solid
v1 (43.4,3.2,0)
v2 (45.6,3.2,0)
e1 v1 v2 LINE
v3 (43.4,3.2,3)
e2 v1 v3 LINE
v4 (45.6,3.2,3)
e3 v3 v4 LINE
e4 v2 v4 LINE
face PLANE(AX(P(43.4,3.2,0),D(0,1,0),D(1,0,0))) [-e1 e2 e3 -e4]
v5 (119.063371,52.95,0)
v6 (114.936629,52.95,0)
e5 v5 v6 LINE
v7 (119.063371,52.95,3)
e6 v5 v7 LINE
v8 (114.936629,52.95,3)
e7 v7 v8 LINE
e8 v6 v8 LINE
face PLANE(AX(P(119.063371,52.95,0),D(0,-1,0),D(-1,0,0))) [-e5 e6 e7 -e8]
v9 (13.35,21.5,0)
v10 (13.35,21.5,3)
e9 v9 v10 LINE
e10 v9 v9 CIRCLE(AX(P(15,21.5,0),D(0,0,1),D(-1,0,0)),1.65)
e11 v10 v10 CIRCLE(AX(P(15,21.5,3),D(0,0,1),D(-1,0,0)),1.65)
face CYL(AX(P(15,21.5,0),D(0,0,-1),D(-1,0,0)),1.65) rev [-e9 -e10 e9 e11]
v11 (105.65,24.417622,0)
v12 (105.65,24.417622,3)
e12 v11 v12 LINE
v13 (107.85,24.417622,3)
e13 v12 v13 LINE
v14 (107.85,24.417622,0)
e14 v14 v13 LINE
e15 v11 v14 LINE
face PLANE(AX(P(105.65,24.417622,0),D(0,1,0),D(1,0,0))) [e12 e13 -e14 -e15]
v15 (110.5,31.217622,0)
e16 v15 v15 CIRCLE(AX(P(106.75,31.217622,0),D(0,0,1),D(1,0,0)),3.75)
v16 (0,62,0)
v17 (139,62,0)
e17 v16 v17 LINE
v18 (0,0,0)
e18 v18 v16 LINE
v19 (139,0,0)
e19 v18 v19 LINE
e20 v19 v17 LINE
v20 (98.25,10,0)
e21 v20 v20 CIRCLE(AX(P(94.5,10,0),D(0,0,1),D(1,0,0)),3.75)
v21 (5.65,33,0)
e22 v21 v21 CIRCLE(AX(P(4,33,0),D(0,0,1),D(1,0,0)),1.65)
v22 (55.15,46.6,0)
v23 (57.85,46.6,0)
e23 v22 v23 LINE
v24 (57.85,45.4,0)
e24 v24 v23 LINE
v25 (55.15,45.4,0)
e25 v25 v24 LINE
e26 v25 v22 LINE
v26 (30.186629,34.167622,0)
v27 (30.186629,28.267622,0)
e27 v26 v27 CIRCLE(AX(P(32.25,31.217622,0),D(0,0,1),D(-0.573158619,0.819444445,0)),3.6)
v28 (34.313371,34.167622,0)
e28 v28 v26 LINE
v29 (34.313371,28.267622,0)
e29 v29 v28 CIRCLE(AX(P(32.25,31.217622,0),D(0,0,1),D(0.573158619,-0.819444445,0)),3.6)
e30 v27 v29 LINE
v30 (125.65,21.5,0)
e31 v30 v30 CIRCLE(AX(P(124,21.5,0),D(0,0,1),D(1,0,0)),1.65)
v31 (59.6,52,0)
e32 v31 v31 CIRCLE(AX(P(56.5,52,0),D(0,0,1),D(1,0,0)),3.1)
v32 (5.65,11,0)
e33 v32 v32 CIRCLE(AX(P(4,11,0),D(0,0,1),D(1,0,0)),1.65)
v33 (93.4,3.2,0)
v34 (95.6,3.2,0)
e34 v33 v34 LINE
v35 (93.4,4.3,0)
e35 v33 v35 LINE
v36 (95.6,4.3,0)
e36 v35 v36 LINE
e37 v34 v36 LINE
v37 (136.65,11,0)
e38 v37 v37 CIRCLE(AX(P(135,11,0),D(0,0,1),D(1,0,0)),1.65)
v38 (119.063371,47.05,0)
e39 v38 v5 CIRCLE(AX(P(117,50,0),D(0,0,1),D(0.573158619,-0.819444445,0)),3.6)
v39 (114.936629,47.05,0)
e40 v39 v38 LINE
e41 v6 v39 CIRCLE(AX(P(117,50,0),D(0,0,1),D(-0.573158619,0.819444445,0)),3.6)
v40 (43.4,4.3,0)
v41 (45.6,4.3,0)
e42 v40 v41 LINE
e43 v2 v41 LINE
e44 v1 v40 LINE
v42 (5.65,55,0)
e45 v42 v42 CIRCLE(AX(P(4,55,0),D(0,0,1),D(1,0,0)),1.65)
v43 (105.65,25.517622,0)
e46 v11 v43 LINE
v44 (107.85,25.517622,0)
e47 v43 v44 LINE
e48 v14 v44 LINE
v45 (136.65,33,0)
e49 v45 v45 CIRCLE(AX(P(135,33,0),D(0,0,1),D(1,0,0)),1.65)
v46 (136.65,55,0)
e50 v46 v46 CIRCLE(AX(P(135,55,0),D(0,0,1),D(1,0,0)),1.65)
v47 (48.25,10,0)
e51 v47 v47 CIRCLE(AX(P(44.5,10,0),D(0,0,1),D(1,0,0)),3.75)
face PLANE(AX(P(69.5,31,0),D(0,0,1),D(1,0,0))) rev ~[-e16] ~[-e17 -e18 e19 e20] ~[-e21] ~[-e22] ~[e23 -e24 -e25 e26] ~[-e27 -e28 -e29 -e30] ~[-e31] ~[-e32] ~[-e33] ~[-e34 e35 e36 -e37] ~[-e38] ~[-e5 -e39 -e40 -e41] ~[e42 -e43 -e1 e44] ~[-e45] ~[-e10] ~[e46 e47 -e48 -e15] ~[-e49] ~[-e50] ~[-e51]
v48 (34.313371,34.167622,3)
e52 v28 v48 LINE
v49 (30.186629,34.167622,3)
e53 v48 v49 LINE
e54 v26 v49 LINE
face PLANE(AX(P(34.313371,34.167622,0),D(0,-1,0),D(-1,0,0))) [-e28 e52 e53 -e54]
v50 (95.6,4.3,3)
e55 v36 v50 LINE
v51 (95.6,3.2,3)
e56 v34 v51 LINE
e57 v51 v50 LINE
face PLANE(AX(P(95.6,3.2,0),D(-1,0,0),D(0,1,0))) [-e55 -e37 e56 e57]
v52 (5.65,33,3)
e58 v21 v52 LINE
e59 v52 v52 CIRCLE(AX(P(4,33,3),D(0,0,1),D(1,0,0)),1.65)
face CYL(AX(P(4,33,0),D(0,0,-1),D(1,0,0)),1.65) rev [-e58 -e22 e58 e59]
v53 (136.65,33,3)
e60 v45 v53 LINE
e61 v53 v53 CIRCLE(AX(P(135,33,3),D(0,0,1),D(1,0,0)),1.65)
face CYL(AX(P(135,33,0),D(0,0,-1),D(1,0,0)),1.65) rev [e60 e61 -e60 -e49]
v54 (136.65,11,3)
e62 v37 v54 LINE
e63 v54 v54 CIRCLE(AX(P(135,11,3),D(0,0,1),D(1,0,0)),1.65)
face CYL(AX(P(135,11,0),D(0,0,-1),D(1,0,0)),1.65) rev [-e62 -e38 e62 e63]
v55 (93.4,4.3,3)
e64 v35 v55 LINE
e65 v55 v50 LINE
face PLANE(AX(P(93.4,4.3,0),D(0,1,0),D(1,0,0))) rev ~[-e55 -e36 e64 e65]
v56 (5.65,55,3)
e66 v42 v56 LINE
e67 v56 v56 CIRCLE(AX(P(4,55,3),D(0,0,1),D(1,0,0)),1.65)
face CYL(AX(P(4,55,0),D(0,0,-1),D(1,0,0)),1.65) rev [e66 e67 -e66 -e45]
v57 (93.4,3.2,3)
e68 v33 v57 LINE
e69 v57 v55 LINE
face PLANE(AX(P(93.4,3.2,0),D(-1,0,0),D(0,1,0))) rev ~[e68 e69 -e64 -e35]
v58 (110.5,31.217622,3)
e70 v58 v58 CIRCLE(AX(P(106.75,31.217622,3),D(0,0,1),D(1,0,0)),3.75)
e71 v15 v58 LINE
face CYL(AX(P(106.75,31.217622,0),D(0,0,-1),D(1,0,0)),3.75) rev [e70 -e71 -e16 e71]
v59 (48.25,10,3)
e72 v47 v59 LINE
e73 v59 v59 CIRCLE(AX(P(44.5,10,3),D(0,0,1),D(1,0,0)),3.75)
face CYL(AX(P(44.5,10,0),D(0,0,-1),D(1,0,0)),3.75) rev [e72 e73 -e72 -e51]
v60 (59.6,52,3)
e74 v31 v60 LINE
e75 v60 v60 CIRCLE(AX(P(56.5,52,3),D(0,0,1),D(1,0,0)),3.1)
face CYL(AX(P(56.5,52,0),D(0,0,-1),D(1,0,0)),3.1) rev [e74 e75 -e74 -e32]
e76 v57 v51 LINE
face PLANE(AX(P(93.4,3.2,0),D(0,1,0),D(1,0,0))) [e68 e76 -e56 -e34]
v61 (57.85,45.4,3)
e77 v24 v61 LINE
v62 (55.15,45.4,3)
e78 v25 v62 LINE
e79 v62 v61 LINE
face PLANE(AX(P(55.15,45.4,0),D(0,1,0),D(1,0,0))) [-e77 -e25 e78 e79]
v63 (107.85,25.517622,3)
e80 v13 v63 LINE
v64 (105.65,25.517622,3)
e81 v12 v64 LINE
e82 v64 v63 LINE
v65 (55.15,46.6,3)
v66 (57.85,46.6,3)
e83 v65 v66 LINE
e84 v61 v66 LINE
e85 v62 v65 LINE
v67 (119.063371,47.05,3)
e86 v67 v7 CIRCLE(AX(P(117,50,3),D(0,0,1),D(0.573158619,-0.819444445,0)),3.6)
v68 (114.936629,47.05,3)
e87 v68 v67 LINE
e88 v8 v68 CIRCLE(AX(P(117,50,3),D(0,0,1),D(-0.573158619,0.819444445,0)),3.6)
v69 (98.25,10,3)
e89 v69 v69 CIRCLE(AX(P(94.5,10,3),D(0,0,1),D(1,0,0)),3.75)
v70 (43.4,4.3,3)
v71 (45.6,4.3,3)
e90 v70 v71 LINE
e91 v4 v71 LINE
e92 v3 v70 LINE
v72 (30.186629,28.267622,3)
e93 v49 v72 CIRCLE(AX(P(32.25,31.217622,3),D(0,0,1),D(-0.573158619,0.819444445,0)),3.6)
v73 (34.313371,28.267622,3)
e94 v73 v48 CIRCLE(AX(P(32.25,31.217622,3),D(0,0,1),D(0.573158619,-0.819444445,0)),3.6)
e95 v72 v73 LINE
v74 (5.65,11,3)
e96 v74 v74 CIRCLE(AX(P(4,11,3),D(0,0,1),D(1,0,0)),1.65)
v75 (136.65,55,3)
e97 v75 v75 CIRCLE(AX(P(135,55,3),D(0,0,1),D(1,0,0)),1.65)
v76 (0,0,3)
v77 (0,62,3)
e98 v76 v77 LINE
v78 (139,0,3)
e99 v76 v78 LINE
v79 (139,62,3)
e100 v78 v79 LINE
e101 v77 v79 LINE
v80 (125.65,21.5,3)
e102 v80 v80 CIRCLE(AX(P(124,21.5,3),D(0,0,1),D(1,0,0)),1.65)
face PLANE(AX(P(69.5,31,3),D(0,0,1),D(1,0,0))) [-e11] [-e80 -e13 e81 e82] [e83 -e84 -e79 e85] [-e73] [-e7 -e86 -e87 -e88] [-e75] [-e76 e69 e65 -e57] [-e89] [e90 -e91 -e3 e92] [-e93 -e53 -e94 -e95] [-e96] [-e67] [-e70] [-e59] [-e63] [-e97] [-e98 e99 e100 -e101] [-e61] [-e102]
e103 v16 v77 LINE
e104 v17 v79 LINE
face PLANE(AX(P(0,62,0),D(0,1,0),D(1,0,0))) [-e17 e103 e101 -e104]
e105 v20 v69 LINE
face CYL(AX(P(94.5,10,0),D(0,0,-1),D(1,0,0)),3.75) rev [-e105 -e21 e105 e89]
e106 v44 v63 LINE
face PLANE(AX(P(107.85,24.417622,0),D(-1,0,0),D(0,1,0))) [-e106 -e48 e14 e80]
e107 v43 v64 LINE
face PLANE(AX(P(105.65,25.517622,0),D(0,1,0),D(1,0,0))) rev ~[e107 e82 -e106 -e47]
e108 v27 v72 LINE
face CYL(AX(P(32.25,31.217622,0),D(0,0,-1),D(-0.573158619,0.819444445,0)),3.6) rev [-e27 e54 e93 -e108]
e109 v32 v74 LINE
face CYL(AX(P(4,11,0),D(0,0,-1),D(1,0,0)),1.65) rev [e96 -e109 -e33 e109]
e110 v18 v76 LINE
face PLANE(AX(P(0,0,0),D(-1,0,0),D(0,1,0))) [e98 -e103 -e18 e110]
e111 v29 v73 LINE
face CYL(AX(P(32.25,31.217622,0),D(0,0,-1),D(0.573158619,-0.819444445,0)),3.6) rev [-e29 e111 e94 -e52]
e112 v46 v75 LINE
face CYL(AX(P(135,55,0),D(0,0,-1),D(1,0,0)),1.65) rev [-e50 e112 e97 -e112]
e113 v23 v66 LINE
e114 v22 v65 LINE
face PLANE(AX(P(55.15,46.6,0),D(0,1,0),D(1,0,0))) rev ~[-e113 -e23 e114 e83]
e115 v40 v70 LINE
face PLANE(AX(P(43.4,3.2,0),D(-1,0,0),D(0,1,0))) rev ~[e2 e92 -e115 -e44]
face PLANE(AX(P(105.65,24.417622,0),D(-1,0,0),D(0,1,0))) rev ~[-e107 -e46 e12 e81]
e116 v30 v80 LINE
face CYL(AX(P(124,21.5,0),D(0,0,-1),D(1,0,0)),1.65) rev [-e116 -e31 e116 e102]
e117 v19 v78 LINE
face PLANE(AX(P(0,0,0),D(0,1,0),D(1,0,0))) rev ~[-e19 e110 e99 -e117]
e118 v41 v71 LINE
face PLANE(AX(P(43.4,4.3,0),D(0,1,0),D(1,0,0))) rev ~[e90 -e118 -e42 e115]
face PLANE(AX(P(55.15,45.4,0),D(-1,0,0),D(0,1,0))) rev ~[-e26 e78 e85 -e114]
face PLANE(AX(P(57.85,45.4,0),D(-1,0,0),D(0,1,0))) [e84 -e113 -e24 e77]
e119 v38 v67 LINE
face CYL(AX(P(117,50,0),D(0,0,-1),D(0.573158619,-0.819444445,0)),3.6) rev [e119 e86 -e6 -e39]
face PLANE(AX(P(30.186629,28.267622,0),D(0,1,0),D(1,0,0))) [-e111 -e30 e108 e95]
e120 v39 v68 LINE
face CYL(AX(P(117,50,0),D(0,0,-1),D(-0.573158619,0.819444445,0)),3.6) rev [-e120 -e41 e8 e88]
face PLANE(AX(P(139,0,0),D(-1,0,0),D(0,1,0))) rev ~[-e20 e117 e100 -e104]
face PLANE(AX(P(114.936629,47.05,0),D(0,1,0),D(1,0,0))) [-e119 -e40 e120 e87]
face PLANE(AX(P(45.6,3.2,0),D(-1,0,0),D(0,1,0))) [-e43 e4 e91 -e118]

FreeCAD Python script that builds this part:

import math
import FreeCAD as App
import Part
import Sketcher
from FreeCAD import Vector
Q = App.Units.Quantity


def add_polygon(sketch, points):
    """Adds a closed chain of lines whose ends are joined by coincident constraints."""
    first, n = sketch.GeometryCount, len(points)
    for a, b in zip(points, points[1:] + points[:1]):
        sketch.addGeometry(Part.LineSegment(App.Vector(*a, 0), App.Vector(*b, 0)), False)
    for i in range(n):
        sketch.addConstraint(Sketcher.Constraint("Coincident", first + i, 2, first + (i + 1) % n, 1))

doc = App.newDocument("Part")
body = doc.addObject("PartDesign::Body", "Body")

# Sketch on XY plane
sketch1 = body.newObject("Sketcher::SketchObject", "Sketch")
sketch1.AttachmentSupport = (doc.getObject("XY_Plane"), [""])
sketch1.MapMode = "FlatFace"
add_polygon(sketch1, [(0, 62), (0, 0), (139, 0), (139, 62)])  # lines 0-3
sketch1.addGeometry(Part.Circle(Vector(4, 11, 0), Vector(0, 0, 1), 1.6), False)  # 4
add_polygon(sketch1, [(45.6, 3.2), (43.4, 3.2), (43.4, 4.3), (45.6, 4.3)])  # lines 5-8
sketch1.addGeometry(Part.Circle(Vector(44.5, 10, 0), Vector(0, 0, 1), 3.8), False)  # 9
sketch1.addGeometry(Part.Circle(Vector(15, 21.5, 0), Vector(0, 0, 1), 1.6), False)  # 10
add_polygon(sketch1, [(95.6, 3.2), (93.4, 3.2), (93.4, 4.3), (95.6, 4.3)])  # lines 11-14
sketch1.addGeometry(Part.Circle(Vector(94.5, 10, 0), Vector(0, 0, 1), 3.8), False)  # 15
sketch1.addGeometry(Part.Circle(Vector(135, 11, 0), Vector(0, 0, 1), 1.6), False)  # 16
sketch1.addGeometry(Part.Circle(Vector(124, 21.5, 0), Vector(0, 0, 1), 1.6), False)  # 17
add_polygon(sketch1, [(107.8, 24.4), (105.7, 24.4), (105.7, 25.5), (107.8, 25.5)])  # lines 18-21
sketch1.addGeometry(Part.Circle(Vector(4, 33, 0), Vector(0, 0, 1), 1.6), False)  # 22
sketch1.addGeometry(Part.LineSegment(Vector(34.3, 28.3, 0), Vector(30.2, 28.3, 0)), False)  # 23
sketch1.addGeometry(Part.ArcOfCircle(Part.Circle(Vector(32.2, 31.2, 0), Vector(0, 0, 1), 3.6), math.radians(125), math.radians(235)), False)  # 24
sketch1.addGeometry(Part.LineSegment(Vector(30.2, 34.2, 0), Vector(34.3, 34.2, 0)), False)  # 25
sketch1.addGeometry(Part.ArcOfCircle(Part.Circle(Vector(32.2, 31.2, 0), Vector(0, 0, 1), 3.6), math.radians(-55), math.radians(55)), False)  # 26
sketch1.addGeometry(Part.Circle(Vector(4, 55, 0), Vector(0, 0, 1), 1.6), False)  # 27
add_polygon(sketch1, [(57.9, 45.4), (55.1, 45.4), (55.1, 46.6), (57.9, 46.6)])  # lines 28-31
sketch1.addGeometry(Part.Circle(Vector(56.5, 52, 0), Vector(0, 0, 1), 3.1), False)  # 32
sketch1.addGeometry(Part.Circle(Vector(106.8, 31.2, 0), Vector(0, 0, 1), 3.8), False)  # 33
sketch1.addGeometry(Part.Circle(Vector(135, 33, 0), Vector(0, 0, 1), 1.6), False)  # 34
sketch1.addGeometry(Part.LineSegment(Vector(119.1, 47, 0), Vector(114.9, 47, 0)), False)  # 35
sketch1.addGeometry(Part.ArcOfCircle(Part.Circle(Vector(117, 50, 0), Vector(0, 0, 1), 3.6), math.radians(125), math.radians(235)), False)  # 36
sketch1.addGeometry(Part.LineSegment(Vector(114.9, 53, 0), Vector(119.1, 53, 0)), False)  # 37
sketch1.addGeometry(Part.ArcOfCircle(Part.Circle(Vector(117, 50, 0), Vector(0, 0, 1), 3.6), math.radians(-55), math.radians(55)), False)  # 38
sketch1.addGeometry(Part.Circle(Vector(135, 55, 0), Vector(0, 0, 1), 1.6), False)  # 39
sketch1.addConstraint(Sketcher.Constraint("Coincident", 23, 2, 24, 2))
sketch1.addConstraint(Sketcher.Constraint("Coincident", 24, 1, 25, 1))
sketch1.addConstraint(Sketcher.Constraint("Coincident", 25, 2, 26, 2))
sketch1.addConstraint(Sketcher.Constraint("Coincident", 26, 1, 23, 1))
sketch1.addConstraint(Sketcher.Constraint("Coincident", 35, 2, 36, 2))
sketch1.addConstraint(Sketcher.Constraint("Coincident", 36, 1, 37, 1))
sketch1.addConstraint(Sketcher.Constraint("Coincident", 37, 2, 38, 2))
sketch1.addConstraint(Sketcher.Constraint("Coincident", 38, 1, 35, 1))
sketch1.addConstraint(Sketcher.Constraint("Vertical", 0))
sketch1.addConstraint(Sketcher.Constraint("Horizontal", 1))
sketch1.addConstraint(Sketcher.Constraint("Vertical", 2))
sketch1.addConstraint(Sketcher.Constraint("Horizontal", 3))
sketch1.addConstraint(Sketcher.Constraint("Horizontal", 5))
sketch1.addConstraint(Sketcher.Constraint("Vertical", 6))
sketch1.addConstraint(Sketcher.Constraint("Horizontal", 7))
sketch1.addConstraint(Sketcher.Constraint("Vertical", 8))
sketch1.addConstraint(Sketcher.Constraint("Horizontal", 11))
sketch1.addConstraint(Sketcher.Constraint("Vertical", 12))
sketch1.addConstraint(Sketcher.Constraint("Horizontal", 13))
sketch1.addConstraint(Sketcher.Constraint("Vertical", 14))
sketch1.addConstraint(Sketcher.Constraint("Horizontal", 18))
sketch1.addConstraint(Sketcher.Constraint("Vertical", 19))
sketch1.addConstraint(Sketcher.Constraint("Horizontal", 20))
sketch1.addConstraint(Sketcher.Constraint("Vertical", 21))
sketch1.addConstraint(Sketcher.Constraint("Horizontal", 23))
sketch1.addConstraint(Sketcher.Constraint("Horizontal", 25))
sketch1.addConstraint(Sketcher.Constraint("Horizontal", 28))
sketch1.addConstraint(Sketcher.Constraint("Vertical", 29))
sketch1.addConstraint(Sketcher.Constraint("Horizontal", 30))
sketch1.addConstraint(Sketcher.Constraint("Vertical", 31))
sketch1.addConstraint(Sketcher.Constraint("Horizontal", 35))
sketch1.addConstraint(Sketcher.Constraint("Horizontal", 37))
sketch1.addConstraint(Sketcher.Constraint("Coincident", 0, 2, -1, 1))
sketch1.addConstraint(Sketcher.Constraint("Coincident", 26, 3, 24, 3))
sketch1.addConstraint(Sketcher.Constraint("Coincident", 38, 3, 36, 3))
sketch1.addConstraint(Sketcher.Constraint("Equal", 4, 10))
sketch1.addConstraint(Sketcher.Constraint("Equal", 9, 15))
sketch1.addConstraint(Sketcher.Constraint("Equal", 10, 16))
sketch1.addConstraint(Sketcher.Constraint("Equal", 16, 17))
sketch1.addConstraint(Sketcher.Constraint("Equal", 17, 22))
sketch1.addConstraint(Sketcher.Constraint("Equal", 24, 26))
sketch1.addConstraint(Sketcher.Constraint("Equal", 22, 27))
sketch1.addConstraint(Sketcher.Constraint("Equal", 15, 33))
sketch1.addConstraint(Sketcher.Constraint("Equal", 27, 34))
sketch1.addConstraint(Sketcher.Constraint("Equal", 26, 36))
sketch1.addConstraint(Sketcher.Constraint("Equal", 36, 38))
sketch1.addConstraint(Sketcher.Constraint("Equal", 34, 39))
sketch1.addConstraint(Sketcher.Constraint("Horizontal", 9, 3, 15, 3))
sketch1.addConstraint(Sketcher.Constraint("Horizontal", 4, 3, 16, 3))
sketch1.addConstraint(Sketcher.Constraint("Horizontal", 10, 3, 17, 3))
sketch1.addConstraint(Sketcher.Constraint("Horizontal", 26, 3, 33, 3))
sketch1.addConstraint(Sketcher.Constraint("Horizontal", 22, 3, 34, 3))
sketch1.addConstraint(Sketcher.Constraint("Horizontal", 27, 3, 39, 3))
sketch1.addConstraint(Sketcher.Constraint("Horizontal", 8, 2, 11, 2))
sketch1.addConstraint(Sketcher.Constraint("Horizontal", 7, 2, 12, 2))
sketch1.addConstraint(Sketcher.Constraint("Vertical", 4, 3, 22, 3))
sketch1.addConstraint(Sketcher.Constraint("Vertical", 22, 3, 27, 3))
sketch1.addConstraint(Sketcher.Constraint("Vertical", 16, 3, 34, 3))
sketch1.addConstraint(Sketcher.Constraint("Vertical", 34, 3, 39, 3))
sketch1.addConstraint(Sketcher.Constraint("Vertical", 23, 2, 24, 1))
sketch1.addConstraint(Sketcher.Constraint("Vertical", 35, 2, 36, 1))
sketch1.addConstraint(Sketcher.Constraint("Equal", 7, 11))
sketch1.addConstraint(Sketcher.Constraint("Equal", 13, 18))
sketch1.addConstraint(Sketcher.Constraint("Equal", 25, 35))
sketch1.addConstraint(Sketcher.Constraint("Equal", 14, 19))
sketch1.addConstraint(Sketcher.Constraint("Diameter", 4, Q("3.3 mm")))
sketch1.addConstraint(Sketcher.Constraint("Diameter", 9, Q("7.5 mm")))
sketch1.addConstraint(Sketcher.Constraint("Diameter", 32, Q("6.2 mm")))
sketch1.addConstraint(Sketcher.Constraint("Radius", 24, Q("3.6 mm")))
sketch1.addConstraint(Sketcher.Constraint("DistanceX", 1, 1, 1, 2, Q("139 mm")))
sketch1.addConstraint(Sketcher.Constraint("DistanceY", 0, 2, 0, 1, Q("62 mm")))
sketch1.addConstraint(Sketcher.Constraint("DistanceX", 5, 2, 5, 1, Q("2.2 mm")))
sketch1.addConstraint(Sketcher.Constraint("DistanceX", 28, 2, 28, 1, Q("2.7 mm")))
sketch1.addConstraint(Sketcher.Constraint("DistanceY", 6, 1, 6, 2, Q("1.1 mm")))
sketch1.addConstraint(Sketcher.Constraint("DistanceY", 29, 1, 29, 2, Q("1.2 mm")))
sketch1.addConstraint(Sketcher.Constraint("DistanceX", -1, 1, 4, 3, Q("4 mm")))
sketch1.addConstraint(Sketcher.Constraint("DistanceY", -1, 1, 4, 3, Q("11 mm")))
sketch1.addConstraint(Sketcher.Constraint("DistanceY", -1, 1, 9, 3, Q("10 mm")))
sketch1.addConstraint(Sketcher.Constraint("DistanceX", -1, 1, 10, 3, Q("15 mm")))
sketch1.addConstraint(Sketcher.Constraint("DistanceX", -1, 1, 16, 3, Q("135 mm")))
sketch1.addConstraint(Sketcher.Constraint("DistanceX", -1, 1, 17, 3, Q("124 mm")))
sketch1.addConstraint(Sketcher.Constraint("DistanceY", -1, 1, 22, 3, Q("33 mm")))
sketch1.addConstraint(Sketcher.Constraint("DistanceY", -1, 1, 27, 3, Q("55 mm")))
sketch1.addConstraint(Sketcher.Constraint("DistanceY", -1, 1, 32, 3, Q("52 mm")))
sketch1.addConstraint(Sketcher.Constraint("DistanceX", -1, 1, 36, 3, Q("117 mm")))
sketch1.addConstraint(Sketcher.Constraint("DistanceY", -1, 1, 36, 3, Q("50 mm")))
sketch1.addConstraint(Sketcher.Constraint("DistanceX", 9, 3, 15, 3, Q("50 mm")))
sketch1.addConstraint(Sketcher.Constraint("DistanceX", 9, 3, 32, 3, Q("12 mm")))
sketch1.addConstraint(Sketcher.Constraint("DistanceX", -1, 1, 9, 3, Q("44.5 mm")))
sketch1.addConstraint(Sketcher.Constraint("DistanceY", -1, 1, 10, 3, Q("21.5 mm")))
sketch1.addConstraint(Sketcher.Constraint("DistanceX", -1, 1, 5, 2, Q("43.4 mm")))
sketch1.addConstraint(Sketcher.Constraint("DistanceY", -1, 1, 5, 2, Q("3.2 mm")))
sketch1.addConstraint(Sketcher.Constraint("DistanceX", -1, 1, 11, 2, Q("93.4 mm")))
sketch1.addConstraint(Sketcher.Constraint("DistanceY", -1, 1, 28, 2, Q("45.4 mm")))
sketch1.addConstraint(Sketcher.Constraint("DistanceX", 18, 2, 33, 3, Q("1.1 mm")))
sketch1.addConstraint(Sketcher.Constraint("DistanceY", 18, 2, 33, 3, Q("6.8 mm")))
sketch1.addConstraint(Sketcher.Constraint("DistanceY", 23, 2, 24, 1, Q("5.9 mm")))
sketch1.addConstraint(Sketcher.Constraint("DistanceX", 24, 3, 28, 2, Q("22.9 mm")))
sketch1.addConstraint(Sketcher.Constraint("DistanceX", -1, 1, 24, 3, Q("32.25 mm")))
sketch1.addConstraint(Sketcher.Constraint("DistanceX", -1, 1, 33, 3, Q("106.75 mm")))
sketch1.addConstraint(Sketcher.Constraint("DistanceY", -1, 1, 24, 3, Q("31.217622 mm")))
pad1 = body.newObject("PartDesign::Pad", "Pad")
pad1.Profile = sketch1
pad1.Length = 3

doc.recompute()
